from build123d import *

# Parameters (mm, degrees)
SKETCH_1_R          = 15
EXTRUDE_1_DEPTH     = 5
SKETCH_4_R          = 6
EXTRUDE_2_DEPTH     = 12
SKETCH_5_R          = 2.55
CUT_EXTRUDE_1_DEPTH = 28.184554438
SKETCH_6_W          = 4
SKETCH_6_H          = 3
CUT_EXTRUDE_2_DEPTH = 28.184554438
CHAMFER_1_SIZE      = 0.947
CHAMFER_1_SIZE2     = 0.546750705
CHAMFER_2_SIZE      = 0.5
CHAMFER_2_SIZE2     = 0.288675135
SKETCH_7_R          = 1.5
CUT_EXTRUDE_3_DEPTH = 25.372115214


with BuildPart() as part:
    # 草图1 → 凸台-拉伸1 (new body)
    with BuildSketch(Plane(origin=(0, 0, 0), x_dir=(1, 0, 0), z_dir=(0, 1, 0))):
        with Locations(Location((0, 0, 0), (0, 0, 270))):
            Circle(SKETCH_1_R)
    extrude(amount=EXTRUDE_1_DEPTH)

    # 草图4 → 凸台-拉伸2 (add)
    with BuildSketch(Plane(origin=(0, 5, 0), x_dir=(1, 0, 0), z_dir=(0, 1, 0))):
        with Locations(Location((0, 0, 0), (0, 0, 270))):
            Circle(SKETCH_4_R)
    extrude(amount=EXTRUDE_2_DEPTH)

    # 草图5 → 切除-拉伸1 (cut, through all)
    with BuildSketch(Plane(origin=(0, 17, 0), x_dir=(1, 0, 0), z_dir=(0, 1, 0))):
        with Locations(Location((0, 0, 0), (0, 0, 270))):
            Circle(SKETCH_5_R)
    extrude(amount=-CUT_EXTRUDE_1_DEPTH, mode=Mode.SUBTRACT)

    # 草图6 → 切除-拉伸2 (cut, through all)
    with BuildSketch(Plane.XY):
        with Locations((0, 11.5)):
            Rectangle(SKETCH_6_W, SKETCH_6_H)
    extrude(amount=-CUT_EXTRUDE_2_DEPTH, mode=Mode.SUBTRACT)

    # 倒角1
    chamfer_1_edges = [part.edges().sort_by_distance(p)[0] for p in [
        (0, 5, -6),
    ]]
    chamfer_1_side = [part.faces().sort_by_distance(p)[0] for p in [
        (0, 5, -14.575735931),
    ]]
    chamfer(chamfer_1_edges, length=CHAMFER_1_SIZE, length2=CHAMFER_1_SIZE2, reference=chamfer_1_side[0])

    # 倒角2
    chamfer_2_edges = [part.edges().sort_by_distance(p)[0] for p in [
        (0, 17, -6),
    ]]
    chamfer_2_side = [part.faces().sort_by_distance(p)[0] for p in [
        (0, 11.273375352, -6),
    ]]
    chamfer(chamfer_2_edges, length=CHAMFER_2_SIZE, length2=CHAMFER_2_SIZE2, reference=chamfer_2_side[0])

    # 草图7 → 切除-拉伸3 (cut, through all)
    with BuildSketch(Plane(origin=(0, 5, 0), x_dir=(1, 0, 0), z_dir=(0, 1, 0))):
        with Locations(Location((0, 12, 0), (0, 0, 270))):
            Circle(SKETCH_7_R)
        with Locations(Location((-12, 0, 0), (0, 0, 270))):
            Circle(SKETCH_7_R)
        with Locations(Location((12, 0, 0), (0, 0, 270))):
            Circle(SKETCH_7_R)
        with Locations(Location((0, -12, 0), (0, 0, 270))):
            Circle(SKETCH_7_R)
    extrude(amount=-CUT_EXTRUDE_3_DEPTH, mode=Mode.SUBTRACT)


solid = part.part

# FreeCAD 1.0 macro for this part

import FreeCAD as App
import Part
import Sketcher

V = App.Vector
Q = App.Units.Quantity


def edges_at(feature, points):
    """Names of the edges that pass closest to the given points."""
    edges = feature.Shape.Edges
    near = lambda p: min(range(len(edges)), key=lambda i: edges[i].distToShape(Part.Vertex(*p))[0])
    return sorted({f"Edge{near(p) + 1}" for p in points})


def add_polygon(sketch, points):
    """Adds a closed chain of lines whose ends are joined by coincident constraints."""
    first, n = sketch.GeometryCount, len(points)
    for a, b in zip(points, points[1:] + points[:1]):
        sketch.addGeometry(Part.LineSegment(App.Vector(*a, 0), App.Vector(*b, 0)), False)
    for i in range(n):
        sketch.addConstraint(Sketcher.Constraint("Coincident", first + i, 2, first + (i + 1) % n, 1))

doc = App.newDocument("Part")
params = doc.addObject("Spreadsheet::Sheet", "Params")
for row, (alias, value) in enumerate([
    ("sketch1_diameter", "30 mm"),
    ("pad1_length", "5 mm"),
    ("sketch2_diameter", "12 mm"),
    ("pad2_length", "12 mm"),
    ("sketch3_diameter", "5.1 mm"),
    ("sketch4_width", "4 mm"),
    ("sketch4_height", "3 mm"),
    ("chamfer_size", "0.947 mm"),
    ("chamfer_size2", "0.546751 mm"),
    ("chamfer2_size", "0.5 mm"),
    ("chamfer2_size2", "0.288675 mm"),
    ("sketch5_diameter", "3 mm"),
], start=1):
    params.set(f"A{row}", alias)
    params.set(f"B{row}", "=" + value)
    params.setAlias(f"B{row}", alias)

body = doc.addObject("PartDesign::Body", "Body")

# Sketch on XZ plane
sketch1 = doc.addObject("Sketcher::SketchObject", "Sketch")
body.addObject(sketch1)
sketch1.AttachmentSupport = (doc.XZ_Plane, [""])
sketch1.MapMode = "FlatFace"
sketch1.addGeometry(Part.Circle(V(0, 0, 0), V(0, 0, 1), 15), False)
sketch1.addConstraint([
    Sketcher.Constraint("Coincident", 0, 3, -1, 1),
    Sketcher.Constraint("Diameter", 0, Q("30 mm")),
])
sketch1.setExpression("Constraints[1]", "Params.sketch1_diameter")
pad1 = doc.addObject("PartDesign::Pad", "Pad")
body.addObject(pad1)
pad1.Profile = sketch1
pad1.setExpression("Length", "Params.pad1_length")
pad1.Reversed = True

# Sketch on XZ plane
sketch2 = doc.addObject("Sketcher::SketchObject", "Sketch001")
body.addObject(sketch2)
sketch2.AttachmentSupport = (doc.XZ_Plane, [""])
sketch2.MapMode = "FlatFace"
sketch2.AttachmentOffset = App.Placement(V(0, 0, -5), App.Rotation())
sketch2.addGeometry(Part.Circle(V(0, 0, 0), V(0, 0, 1), 6), False)
sketch2.addConstraint([
    Sketcher.Constraint("Coincident", 0, 3, -1, 1),
    Sketcher.Constraint("Diameter", 0, Q("12 mm")),
])
sketch2.setExpression("Constraints[1]", "Params.sketch2_diameter")
pad2 = doc.addObject("PartDesign::Pad", "Pad001")
body.addObject(pad2)
pad2.Profile = sketch2
pad2.setExpression("Length", "Params.pad2_length")
pad2.Reversed = True

# Sketch on XZ plane
sketch3 = doc.addObject("Sketcher::SketchObject", "Sketch002")
body.addObject(sketch3)
sketch3.AttachmentSupport = (doc.XZ_Plane, [""])
sketch3.MapMode = "FlatFace"
sketch3.AttachmentOffset = App.Placement(V(0, 0, -17), App.Rotation())
sketch3.addGeometry(Part.Circle(V(0, 0, 0), V(0, 0, 1), 2.55), False)
sketch3.addConstraint([
    Sketcher.Constraint("Coincident", 0, 3, -1, 1),
    Sketcher.Constraint("Diameter", 0, Q("5.1 mm")),
])
sketch3.setExpression("Constraints[1]", "Params.sketch3_diameter")
pocket1 = doc.addObject("PartDesign::Pocket", "Pocket")
body.addObject(pocket1)
pocket1.Profile = sketch3
pocket1.Type = "ThroughAll"
pocket1.Reversed = True

# Sketch on XY plane
sketch4 = doc.addObject("Sketcher::SketchObject", "Sketch003")
body.addObject(sketch4)
sketch4.AttachmentSupport = (doc.XY_Plane, [""])
sketch4.MapMode = "FlatFace"
add_polygon(sketch4, [(-2, 13), (-2, 10), (2, 10), (2, 13)])  # lines 0-3
sketch4.addConstraint([
    Sketcher.Constraint("Vertical", 0),
    Sketcher.Constraint("Horizontal", 1),
    Sketcher.Constraint("Vertical", 2),
    Sketcher.Constraint("Horizontal", 3),
    Sketcher.Constraint("DistanceX", 1, 1, 1, 2, Q("4 mm")),
    Sketcher.Constraint("DistanceY", 0, 2, 0, 1, Q("3 mm")),
    Sketcher.Constraint("DistanceX", 0, 2, -1, 1, Q("2 mm")),
    Sketcher.Constraint("DistanceY", -1, 1, 0, 2, Q("10 mm")),
])
sketch4.setExpression("Constraints[8]", "Params.sketch4_width")
sketch4.setExpression("Constraints[9]", "Params.sketch4_height")
pocket2 = doc.addObject("PartDesign::Pocket", "Pocket001")
body.addObject(pocket2)
pocket2.Profile = sketch4
pocket2.Type = "ThroughAll"
doc.recompute()

chamfer = doc.addObject("PartDesign::Chamfer", "Chamfer")
body.addObject(chamfer)
chamfer.Base = (pocket2, edges_at(pocket2, [(0, 5, -6)]))
chamfer.ChamferType = "Two distances"
chamfer.setExpression("Size", "Params.chamfer_size")
chamfer.setExpression("Size2", "Params.chamfer_size2")
doc.recompute()

chamfer2 = doc.addObject("PartDesign::Chamfer", "Chamfer001")
body.addObject(chamfer2)
chamfer2.Base = (chamfer, edges_at(chamfer, [(0, 17, -6)]))
chamfer2.ChamferType = "Two distances"
chamfer2.setExpression("Size", "Params.chamfer2_size")
chamfer2.setExpression("Size2", "Params.chamfer2_size2")

# Sketch on XZ plane
sketch5 = doc.addObject("Sketcher::SketchObject", "Sketch004")
body.addObject(sketch5)
sketch5.AttachmentSupport = (doc.XZ_Plane, [""])
sketch5.MapMode = "FlatFace"
sketch5.AttachmentOffset = App.Placement(V(0, 0, -5), App.Rotation())
sketch5.addGeometry([
    Part.Circle(V(0, -12, 0), V(0, 0, 1), 1.5),
    Part.Circle(V(-12, 0, 0), V(0, 0, 1), 1.5),
    Part.Circle(V(12, 0, 0), V(0, 0, 1), 1.5),
    Part.Circle(V(0, 12, 0), V(0, 0, 1), 1.5),
], False)
sketch5.addConstraint([
    Sketcher.Constraint("Equal", 0, 1),
    Sketcher.Constraint("Equal", 1, 2),
    Sketcher.Constraint("Equal", 2, 3),
    Sketcher.Constraint("Symmetric", 1, 3, 2, 3, -1, 1),
    Sketcher.Constraint("Symmetric", 0, 3, 3, 3, -1, 1),
    Sketcher.Constraint("PointOnObject", 0, 3, -2),
    Sketcher.Constraint("PointOnObject", 1, 3, -1),
    Sketcher.Constraint("Diameter", 0, Q("3 mm")),
    Sketcher.Constraint("DistanceY", 0, 3, -1, 1, Q("12 mm")),
    Sketcher.Constraint("DistanceX", 1, 3, -1, 1, Q("12 mm")),
])
sketch5.setExpression("Constraints[7]", "Params.sketch5_diameter")
pocket3 = doc.addObject("PartDesign::Pocket", "Pocket002")
body.addObject(pocket3)
pocket3.Profile = sketch5
pocket3.Type = "ThroughAll"
pocket3.Reversed = True

doc.recompute()
